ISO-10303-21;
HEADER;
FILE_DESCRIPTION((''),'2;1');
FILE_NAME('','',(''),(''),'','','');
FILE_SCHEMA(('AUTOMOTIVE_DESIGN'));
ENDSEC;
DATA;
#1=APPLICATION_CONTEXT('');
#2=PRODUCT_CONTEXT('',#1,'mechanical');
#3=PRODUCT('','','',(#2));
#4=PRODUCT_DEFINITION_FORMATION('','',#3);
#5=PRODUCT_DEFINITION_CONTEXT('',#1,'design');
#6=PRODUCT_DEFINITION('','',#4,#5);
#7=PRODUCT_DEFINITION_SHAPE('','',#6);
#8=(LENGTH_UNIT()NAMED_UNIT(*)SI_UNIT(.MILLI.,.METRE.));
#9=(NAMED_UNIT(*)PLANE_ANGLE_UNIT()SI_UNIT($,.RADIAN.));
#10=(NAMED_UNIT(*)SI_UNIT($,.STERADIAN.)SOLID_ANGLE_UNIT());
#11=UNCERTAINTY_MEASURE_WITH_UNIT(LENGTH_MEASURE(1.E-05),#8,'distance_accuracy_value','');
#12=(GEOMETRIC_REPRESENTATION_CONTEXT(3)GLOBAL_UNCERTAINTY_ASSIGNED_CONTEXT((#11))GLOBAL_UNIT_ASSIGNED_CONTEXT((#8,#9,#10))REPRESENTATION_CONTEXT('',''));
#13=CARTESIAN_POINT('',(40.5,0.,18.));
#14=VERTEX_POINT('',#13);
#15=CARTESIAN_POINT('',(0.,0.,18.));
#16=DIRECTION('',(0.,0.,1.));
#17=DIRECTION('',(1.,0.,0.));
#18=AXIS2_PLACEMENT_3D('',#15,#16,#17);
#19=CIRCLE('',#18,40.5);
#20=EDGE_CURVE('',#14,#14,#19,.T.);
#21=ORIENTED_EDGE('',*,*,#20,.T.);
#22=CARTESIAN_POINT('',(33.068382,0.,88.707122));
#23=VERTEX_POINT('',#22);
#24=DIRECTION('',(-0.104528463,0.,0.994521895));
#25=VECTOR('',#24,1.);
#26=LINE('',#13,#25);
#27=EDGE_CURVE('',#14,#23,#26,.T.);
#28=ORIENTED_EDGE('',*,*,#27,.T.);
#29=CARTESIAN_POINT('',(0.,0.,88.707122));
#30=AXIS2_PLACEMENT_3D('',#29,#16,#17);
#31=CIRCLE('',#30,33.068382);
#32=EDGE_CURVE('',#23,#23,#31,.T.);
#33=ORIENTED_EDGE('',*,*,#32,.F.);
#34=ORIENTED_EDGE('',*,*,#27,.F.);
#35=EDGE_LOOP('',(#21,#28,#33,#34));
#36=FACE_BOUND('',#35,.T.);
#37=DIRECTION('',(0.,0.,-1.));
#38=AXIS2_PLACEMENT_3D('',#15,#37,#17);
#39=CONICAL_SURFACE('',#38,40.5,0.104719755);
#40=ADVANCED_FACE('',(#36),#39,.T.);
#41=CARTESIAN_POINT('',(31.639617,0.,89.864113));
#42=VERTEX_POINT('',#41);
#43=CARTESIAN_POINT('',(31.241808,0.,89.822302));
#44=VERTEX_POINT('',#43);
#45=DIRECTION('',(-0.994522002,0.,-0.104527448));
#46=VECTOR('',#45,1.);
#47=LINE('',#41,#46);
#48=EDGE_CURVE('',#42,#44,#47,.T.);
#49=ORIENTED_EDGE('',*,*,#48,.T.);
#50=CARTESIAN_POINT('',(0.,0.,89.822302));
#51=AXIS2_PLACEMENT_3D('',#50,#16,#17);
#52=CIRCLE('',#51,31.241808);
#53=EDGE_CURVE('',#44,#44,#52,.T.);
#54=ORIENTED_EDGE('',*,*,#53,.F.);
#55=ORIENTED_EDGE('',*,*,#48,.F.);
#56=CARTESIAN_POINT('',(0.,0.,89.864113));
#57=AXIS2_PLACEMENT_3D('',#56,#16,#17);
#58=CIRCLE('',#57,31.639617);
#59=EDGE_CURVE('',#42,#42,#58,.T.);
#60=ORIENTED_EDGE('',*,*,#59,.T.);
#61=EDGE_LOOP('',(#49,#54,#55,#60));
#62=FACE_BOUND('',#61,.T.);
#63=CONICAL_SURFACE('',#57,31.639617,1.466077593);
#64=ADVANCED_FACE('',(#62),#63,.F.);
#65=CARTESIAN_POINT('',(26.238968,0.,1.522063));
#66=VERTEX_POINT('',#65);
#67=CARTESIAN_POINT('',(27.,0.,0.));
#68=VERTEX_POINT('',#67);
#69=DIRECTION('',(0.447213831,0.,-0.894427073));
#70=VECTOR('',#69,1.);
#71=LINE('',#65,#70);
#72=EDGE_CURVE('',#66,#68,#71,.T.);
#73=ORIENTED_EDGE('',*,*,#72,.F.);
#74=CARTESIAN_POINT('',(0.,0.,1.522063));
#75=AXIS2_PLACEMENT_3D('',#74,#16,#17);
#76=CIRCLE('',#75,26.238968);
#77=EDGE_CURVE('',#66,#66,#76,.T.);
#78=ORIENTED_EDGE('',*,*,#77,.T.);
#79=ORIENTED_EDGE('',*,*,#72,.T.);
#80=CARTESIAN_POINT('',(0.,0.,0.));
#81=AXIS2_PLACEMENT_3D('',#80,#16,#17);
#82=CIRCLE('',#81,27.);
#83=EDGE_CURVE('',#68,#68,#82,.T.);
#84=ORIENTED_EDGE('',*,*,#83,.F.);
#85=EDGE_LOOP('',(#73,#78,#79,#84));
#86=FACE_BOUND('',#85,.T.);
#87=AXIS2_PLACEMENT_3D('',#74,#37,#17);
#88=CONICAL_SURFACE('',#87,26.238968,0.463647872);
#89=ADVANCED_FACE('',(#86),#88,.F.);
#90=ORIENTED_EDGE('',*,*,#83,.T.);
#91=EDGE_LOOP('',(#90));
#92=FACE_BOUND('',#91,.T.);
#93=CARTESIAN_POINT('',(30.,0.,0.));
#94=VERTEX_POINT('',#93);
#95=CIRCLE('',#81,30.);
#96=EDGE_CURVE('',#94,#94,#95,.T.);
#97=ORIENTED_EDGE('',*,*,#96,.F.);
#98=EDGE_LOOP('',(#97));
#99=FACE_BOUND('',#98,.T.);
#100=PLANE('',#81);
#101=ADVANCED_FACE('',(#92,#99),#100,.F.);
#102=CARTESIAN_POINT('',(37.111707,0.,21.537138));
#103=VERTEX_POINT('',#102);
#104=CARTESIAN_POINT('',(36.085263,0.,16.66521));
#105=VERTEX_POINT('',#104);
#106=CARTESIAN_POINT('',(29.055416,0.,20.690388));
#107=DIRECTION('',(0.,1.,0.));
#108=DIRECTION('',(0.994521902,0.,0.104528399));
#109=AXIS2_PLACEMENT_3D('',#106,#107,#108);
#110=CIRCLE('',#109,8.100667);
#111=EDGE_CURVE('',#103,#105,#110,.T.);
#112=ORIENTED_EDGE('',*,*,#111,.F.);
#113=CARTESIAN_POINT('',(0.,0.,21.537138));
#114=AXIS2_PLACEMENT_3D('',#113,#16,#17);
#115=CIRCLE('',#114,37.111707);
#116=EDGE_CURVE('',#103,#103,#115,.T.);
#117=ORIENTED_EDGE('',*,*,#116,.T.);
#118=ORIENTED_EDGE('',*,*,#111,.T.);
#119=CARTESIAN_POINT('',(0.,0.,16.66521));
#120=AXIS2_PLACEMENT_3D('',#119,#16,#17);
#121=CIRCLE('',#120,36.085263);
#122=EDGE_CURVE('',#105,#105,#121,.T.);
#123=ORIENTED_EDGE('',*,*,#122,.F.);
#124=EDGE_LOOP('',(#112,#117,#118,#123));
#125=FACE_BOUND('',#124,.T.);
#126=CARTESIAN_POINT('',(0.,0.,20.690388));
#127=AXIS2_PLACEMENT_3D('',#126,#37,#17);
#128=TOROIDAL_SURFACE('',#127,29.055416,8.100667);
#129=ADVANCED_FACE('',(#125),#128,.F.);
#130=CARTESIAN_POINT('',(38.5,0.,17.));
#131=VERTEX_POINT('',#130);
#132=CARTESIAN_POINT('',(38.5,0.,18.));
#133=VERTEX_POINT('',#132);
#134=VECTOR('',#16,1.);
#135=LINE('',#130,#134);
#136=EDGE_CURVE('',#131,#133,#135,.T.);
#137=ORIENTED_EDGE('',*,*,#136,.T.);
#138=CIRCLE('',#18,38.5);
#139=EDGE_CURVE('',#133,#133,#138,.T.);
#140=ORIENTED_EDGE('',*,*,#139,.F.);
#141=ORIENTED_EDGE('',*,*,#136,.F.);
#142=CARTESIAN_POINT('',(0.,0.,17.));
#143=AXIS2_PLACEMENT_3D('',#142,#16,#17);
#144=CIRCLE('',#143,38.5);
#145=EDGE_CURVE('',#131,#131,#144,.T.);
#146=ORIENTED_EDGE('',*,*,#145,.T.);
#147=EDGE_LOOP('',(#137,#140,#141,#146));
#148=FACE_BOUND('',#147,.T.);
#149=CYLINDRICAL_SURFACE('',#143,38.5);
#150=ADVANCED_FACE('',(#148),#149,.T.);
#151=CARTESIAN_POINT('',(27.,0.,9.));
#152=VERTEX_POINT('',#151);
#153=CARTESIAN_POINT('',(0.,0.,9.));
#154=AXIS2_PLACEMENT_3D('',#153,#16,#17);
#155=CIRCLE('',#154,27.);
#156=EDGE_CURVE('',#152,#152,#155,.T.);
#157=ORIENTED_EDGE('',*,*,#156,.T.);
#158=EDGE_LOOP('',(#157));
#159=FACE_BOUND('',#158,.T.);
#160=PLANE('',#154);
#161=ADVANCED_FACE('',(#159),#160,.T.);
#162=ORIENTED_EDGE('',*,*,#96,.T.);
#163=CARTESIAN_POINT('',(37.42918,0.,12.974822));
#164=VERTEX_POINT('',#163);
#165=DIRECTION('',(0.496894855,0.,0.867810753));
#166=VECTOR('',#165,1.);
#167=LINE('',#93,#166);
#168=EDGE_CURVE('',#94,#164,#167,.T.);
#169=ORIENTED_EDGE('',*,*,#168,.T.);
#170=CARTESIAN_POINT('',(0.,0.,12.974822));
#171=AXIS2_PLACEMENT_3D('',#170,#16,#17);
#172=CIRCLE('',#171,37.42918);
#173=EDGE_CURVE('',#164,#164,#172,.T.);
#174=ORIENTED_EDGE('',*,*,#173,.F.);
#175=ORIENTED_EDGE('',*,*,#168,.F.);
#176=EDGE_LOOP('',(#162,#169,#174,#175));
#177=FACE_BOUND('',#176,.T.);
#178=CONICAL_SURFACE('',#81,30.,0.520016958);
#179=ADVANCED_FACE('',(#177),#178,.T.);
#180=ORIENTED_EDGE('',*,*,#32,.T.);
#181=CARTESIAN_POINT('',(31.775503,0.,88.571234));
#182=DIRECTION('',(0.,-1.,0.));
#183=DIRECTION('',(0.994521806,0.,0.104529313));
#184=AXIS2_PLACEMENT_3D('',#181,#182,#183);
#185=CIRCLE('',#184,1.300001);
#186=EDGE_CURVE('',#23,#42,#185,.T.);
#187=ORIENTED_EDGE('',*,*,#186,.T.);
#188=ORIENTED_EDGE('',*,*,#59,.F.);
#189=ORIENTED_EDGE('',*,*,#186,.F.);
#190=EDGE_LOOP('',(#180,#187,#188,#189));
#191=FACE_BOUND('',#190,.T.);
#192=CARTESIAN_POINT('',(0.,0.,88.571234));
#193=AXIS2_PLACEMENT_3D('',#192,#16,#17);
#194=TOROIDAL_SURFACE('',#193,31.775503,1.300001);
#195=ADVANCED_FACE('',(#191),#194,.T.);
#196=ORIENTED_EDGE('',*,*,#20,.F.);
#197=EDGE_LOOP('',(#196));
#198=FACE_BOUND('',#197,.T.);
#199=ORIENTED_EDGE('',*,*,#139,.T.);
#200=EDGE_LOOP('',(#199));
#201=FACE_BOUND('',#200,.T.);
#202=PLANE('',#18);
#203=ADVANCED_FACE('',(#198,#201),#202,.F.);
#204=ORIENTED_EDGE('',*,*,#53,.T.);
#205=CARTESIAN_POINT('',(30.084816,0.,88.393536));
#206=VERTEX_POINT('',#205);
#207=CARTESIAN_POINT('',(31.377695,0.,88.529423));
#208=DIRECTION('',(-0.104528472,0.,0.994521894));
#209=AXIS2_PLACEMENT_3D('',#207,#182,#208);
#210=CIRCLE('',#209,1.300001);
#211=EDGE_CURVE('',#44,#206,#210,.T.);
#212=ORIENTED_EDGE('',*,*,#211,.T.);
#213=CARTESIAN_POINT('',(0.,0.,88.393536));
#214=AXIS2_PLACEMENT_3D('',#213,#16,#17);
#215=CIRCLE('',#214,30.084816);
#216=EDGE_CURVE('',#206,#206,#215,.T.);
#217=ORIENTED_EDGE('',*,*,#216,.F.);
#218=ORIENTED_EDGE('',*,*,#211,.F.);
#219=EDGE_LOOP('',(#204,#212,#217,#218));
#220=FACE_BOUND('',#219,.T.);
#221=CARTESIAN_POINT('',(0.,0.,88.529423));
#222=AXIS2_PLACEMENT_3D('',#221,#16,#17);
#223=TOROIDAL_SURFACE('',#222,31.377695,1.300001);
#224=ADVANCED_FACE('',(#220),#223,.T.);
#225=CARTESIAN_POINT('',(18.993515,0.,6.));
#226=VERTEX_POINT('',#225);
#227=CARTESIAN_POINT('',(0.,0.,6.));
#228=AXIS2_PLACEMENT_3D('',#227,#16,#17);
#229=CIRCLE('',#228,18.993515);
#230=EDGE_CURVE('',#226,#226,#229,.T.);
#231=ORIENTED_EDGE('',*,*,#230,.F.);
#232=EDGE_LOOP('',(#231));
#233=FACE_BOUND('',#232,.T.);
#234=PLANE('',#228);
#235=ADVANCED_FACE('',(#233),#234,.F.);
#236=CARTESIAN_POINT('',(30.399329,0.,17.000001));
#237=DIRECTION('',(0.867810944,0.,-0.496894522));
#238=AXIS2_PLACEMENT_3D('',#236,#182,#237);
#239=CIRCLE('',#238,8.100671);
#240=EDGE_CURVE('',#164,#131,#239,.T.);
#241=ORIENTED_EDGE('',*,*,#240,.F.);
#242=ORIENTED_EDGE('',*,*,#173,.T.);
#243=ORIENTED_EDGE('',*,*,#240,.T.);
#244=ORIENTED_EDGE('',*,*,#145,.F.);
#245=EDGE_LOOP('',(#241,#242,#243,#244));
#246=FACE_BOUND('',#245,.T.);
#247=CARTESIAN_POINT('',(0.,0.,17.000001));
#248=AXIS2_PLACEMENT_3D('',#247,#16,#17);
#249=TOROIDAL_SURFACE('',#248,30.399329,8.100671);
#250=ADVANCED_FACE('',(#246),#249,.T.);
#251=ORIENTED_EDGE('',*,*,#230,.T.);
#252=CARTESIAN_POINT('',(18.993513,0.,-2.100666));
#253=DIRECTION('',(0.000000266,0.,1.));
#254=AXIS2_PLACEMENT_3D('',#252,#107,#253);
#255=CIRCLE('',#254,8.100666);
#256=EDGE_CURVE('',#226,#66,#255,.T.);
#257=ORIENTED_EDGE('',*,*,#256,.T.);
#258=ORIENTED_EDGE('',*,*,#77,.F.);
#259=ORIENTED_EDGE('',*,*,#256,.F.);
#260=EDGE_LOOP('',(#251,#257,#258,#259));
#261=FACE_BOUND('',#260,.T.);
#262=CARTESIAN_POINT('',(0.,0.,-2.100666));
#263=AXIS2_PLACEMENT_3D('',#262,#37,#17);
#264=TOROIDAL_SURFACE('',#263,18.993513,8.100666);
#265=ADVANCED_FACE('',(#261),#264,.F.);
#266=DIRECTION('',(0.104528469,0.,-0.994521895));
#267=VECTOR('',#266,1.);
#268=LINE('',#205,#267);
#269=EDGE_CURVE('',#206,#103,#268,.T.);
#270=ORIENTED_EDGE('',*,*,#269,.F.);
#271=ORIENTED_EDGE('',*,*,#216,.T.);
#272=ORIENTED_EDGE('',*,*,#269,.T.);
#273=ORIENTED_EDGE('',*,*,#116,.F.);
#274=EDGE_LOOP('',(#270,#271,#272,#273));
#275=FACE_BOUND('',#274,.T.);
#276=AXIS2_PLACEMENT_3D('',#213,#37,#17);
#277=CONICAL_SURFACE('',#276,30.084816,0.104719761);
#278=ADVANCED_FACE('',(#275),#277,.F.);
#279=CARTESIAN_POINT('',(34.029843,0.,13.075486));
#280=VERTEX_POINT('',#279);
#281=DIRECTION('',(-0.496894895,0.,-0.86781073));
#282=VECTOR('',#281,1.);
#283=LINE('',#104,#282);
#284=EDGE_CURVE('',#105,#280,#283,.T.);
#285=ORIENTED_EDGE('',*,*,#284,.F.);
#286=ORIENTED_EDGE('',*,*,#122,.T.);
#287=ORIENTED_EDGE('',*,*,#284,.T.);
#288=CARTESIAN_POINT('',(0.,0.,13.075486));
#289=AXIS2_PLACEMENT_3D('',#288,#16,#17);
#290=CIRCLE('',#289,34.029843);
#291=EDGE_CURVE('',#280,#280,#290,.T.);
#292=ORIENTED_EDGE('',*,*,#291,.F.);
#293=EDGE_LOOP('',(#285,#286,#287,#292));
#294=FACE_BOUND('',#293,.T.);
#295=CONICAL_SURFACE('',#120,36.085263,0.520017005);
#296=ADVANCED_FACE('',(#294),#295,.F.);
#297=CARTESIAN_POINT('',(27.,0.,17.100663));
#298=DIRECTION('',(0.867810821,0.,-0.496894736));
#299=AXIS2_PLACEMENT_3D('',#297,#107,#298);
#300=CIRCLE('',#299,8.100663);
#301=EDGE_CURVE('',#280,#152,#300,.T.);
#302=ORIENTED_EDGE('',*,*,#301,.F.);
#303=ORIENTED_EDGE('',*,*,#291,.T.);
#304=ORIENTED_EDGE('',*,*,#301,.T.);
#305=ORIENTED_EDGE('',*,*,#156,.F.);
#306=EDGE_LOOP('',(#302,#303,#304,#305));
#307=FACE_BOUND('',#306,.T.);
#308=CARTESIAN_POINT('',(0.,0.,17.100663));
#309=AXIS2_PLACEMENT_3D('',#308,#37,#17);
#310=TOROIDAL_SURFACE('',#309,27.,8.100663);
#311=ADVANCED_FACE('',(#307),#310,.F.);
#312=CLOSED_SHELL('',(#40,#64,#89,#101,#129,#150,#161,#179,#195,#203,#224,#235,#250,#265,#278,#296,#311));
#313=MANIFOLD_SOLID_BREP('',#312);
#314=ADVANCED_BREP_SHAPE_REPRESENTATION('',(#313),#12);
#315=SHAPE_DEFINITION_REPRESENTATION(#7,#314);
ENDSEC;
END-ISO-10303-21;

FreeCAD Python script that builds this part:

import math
import FreeCAD as App
import Part
import Sketcher

V = App.Vector
Q = App.Units.Quantity

doc = App.newDocument("Part")
params = doc.addObject("Spreadsheet::Sheet", "Params")
for row, (alias, value) in enumerate([
    ("sketch1_radius", "1.300001 mm"),
    ("sketch1_width", "3 mm"),
    ("sketch1_width2", "2 mm"),
    ("sketch1_width3", "27 mm"),
    ("sketch1_height", "1 mm"),
    ("revolution_angle", "360 deg"),
], start=1):
    params.set(f"A{row}", alias)
    params.set(f"B{row}", "=" + value)
    params.setAlias(f"B{row}", alias)

body = doc.addObject("PartDesign::Body", "Body")

# Sketch on XZ plane
sketch1 = body.newObject("Sketcher::SketchObject", "Sketch")
sketch1.AttachmentSupport = (doc.getObject("XZ_Plane"), [""])
sketch1.MapMode = "FlatFace"
sketch1.addGeometry([
    Part.LineSegment(V(0, 9, 0), V(0, 6, 0)),  # 0
    Part.LineSegment(V(0, 6, 0), V(18.993515, 6, 0)),  # 1
    Part.ArcOfCircle(Part.Circle(V(18.993513, -2.100666, 0), V(0, 0, 1), 8.100666), math.radians(26.565057), math.radians(89.999985)),  # 2
    Part.LineSegment(V(26.238968, 1.522063, 0), V(27, 0, 0)),  # 3
    Part.LineSegment(V(27, 0, 0), V(30, 0, 0)),  # 4
    Part.LineSegment(V(30, 0, 0), V(37.42918, 12.974822, 0)),  # 5
    Part.ArcOfCircle(Part.Circle(V(30.399329, 17.000001, 0), V(0, 0, 1), 8.100671), math.radians(-29.794755), math.radians(-0.000006)),  # 6
    Part.LineSegment(V(38.5, 17, 0), V(38.5, 18, 0)),  # 7
    Part.LineSegment(V(38.5, 18, 0), V(40.5, 18, 0)),  # 8
    Part.LineSegment(V(40.5, 18, 0), V(33.068382, 88.707122, 0)),  # 9
    Part.ArcOfCircle(Part.Circle(V(31.775503, 88.571234, 0), V(0, 0, 1), 1.300001), math.radians(6.000049), math.radians(95.999955)),  # 10
    Part.LineSegment(V(31.639617, 89.864113, 0), V(31.241808, 89.822302, 0)),  # 11
    Part.ArcOfCircle(Part.Circle(V(31.377695, 88.529423, 0), V(0, 0, 1), 1.300001), math.radians(96.000001), math.radians(185.999994)),  # 12
    Part.LineSegment(V(30.084816, 88.393536, 0), V(37.111707, 21.537138, 0)),  # 13
    Part.ArcOfCircle(Part.Circle(V(29.055416, 20.690388, 0), V(0, 0, 1), 8.100667), math.radians(-29.794766), math.radians(5.999996)),  # 14
    Part.LineSegment(V(36.085263, 16.66521, 0), V(34.029843, 13.075486, 0)),  # 15
    Part.ArcOfCircle(Part.Circle(V(27, 17.100663, 0), V(0, 0, 1), 8.100663), math.radians(-90.000002), math.radians(-29.794769)),  # 16
    Part.LineSegment(V(27, 9, 0), V(0, 9, 0)),  # 17
], False)
sketch1.addConstraint([
    Sketcher.Constraint("Coincident", 0, 2, 1, 1),
    Sketcher.Constraint("Tangent", 1, 2, 2, 2),
    Sketcher.Constraint("Tangent", 2, 1, 3, 1),
    Sketcher.Constraint("Coincident", 3, 2, 4, 1),
    Sketcher.Constraint("Coincident", 4, 2, 5, 1),
    Sketcher.Constraint("Tangent", 5, 2, 6, 1),
    Sketcher.Constraint("Tangent", 6, 2, 7, 1),
    Sketcher.Constraint("Coincident", 7, 2, 8, 1),
    Sketcher.Constraint("Coincident", 8, 2, 9, 1),
    Sketcher.Constraint("Tangent", 9, 2, 10, 1),
    Sketcher.Constraint("Tangent", 10, 2, 11, 1),
    Sketcher.Constraint("Tangent", 11, 2, 12, 1),
    Sketcher.Constraint("Tangent", 12, 2, 13, 1),
    Sketcher.Constraint("Tangent", 13, 2, 14, 2),
    Sketcher.Constraint("Tangent", 14, 1, 15, 1),
    Sketcher.Constraint("Tangent", 15, 2, 16, 2),
    Sketcher.Constraint("Tangent", 16, 1, 17, 1),
    Sketcher.Constraint("Coincident", 17, 2, 0, 1),
    Sketcher.Constraint("Vertical", 0),
    Sketcher.Constraint("Horizontal", 1),
    Sketcher.Constraint("Horizontal", 4),
    Sketcher.Constraint("Vertical", 7),
    Sketcher.Constraint("Horizontal", 8),
    Sketcher.Constraint("Horizontal", 17),
    Sketcher.Constraint("Equal", 10, 12),
    Sketcher.Constraint("Equal", 2, 14),
    Sketcher.Constraint("PointOnObject", 0, 2, -2),
    Sketcher.Constraint("PointOnObject", 3, 2, -1),
    Sketcher.Constraint("Perpendicular", 9, 11),
    Sketcher.Constraint("Perpendicular", 11, 13),
    Sketcher.Constraint("Parallel", 5, 15),
    Sketcher.Constraint("Vertical", 16, 3, 3, 2),
    Sketcher.Constraint("Equal", 4, 0),
    Sketcher.Constraint("Radius", 10, Q("1.300001 mm")),
    Sketcher.Constraint("DistanceX", 4, 1, 4, 2, Q("3 mm")),
    Sketcher.Constraint("DistanceX", 8, 1, 8, 2, Q("2 mm")),
    Sketcher.Constraint("DistanceX", 17, 2, 17, 1, Q("27 mm")),
    Sketcher.Constraint("DistanceY", 7, 1, 7, 2, Q("1 mm")),
    Sketcher.Constraint("Angle", 9, Q("96 deg")),
    Sketcher.Constraint("DistanceY", -1, 1, 6, 3, Q("17.000001 mm")),
    Sketcher.Constraint("DistanceY", -1, 1, 0, 2, Q("6 mm")),
    Sketcher.Constraint("Distance", 11, Q("0.4 mm")),
    Sketcher.Constraint("DistanceX", -1, 1, 6, 2, Q("38.5 mm")),
    Sketcher.Constraint("Radius", 6, Q("8.100671 mm")),
    Sketcher.Constraint("Radius", 2, Q("8.100666 mm")),
    Sketcher.Constraint("Radius", 16, Q("8.100663 mm")),
    Sketcher.Constraint("DistanceY", -1, 1, 11, 2, Q("89.822302 mm")),
    Sketcher.Constraint("DistanceX", 1, 2, 14, 3, Q("10.061901 mm")),
])
sketch1.setExpression("Constraints[33]", "Params.sketch1_radius")
sketch1.setExpression("Constraints[34]", "Params.sketch1_width")
sketch1.setExpression("Constraints[35]", "Params.sketch1_width2")
sketch1.setExpression("Constraints[36]", "Params.sketch1_width3")
sketch1.setExpression("Constraints[37]", "Params.sketch1_height")
revolution = body.newObject("PartDesign::Revolution", "Revolution")
revolution.Profile = sketch1
revolution.ReferenceAxis = (sketch1, ["V_Axis"])
revolution.setExpression("Angle", "Params.revolution_angle")

doc.recompute()
